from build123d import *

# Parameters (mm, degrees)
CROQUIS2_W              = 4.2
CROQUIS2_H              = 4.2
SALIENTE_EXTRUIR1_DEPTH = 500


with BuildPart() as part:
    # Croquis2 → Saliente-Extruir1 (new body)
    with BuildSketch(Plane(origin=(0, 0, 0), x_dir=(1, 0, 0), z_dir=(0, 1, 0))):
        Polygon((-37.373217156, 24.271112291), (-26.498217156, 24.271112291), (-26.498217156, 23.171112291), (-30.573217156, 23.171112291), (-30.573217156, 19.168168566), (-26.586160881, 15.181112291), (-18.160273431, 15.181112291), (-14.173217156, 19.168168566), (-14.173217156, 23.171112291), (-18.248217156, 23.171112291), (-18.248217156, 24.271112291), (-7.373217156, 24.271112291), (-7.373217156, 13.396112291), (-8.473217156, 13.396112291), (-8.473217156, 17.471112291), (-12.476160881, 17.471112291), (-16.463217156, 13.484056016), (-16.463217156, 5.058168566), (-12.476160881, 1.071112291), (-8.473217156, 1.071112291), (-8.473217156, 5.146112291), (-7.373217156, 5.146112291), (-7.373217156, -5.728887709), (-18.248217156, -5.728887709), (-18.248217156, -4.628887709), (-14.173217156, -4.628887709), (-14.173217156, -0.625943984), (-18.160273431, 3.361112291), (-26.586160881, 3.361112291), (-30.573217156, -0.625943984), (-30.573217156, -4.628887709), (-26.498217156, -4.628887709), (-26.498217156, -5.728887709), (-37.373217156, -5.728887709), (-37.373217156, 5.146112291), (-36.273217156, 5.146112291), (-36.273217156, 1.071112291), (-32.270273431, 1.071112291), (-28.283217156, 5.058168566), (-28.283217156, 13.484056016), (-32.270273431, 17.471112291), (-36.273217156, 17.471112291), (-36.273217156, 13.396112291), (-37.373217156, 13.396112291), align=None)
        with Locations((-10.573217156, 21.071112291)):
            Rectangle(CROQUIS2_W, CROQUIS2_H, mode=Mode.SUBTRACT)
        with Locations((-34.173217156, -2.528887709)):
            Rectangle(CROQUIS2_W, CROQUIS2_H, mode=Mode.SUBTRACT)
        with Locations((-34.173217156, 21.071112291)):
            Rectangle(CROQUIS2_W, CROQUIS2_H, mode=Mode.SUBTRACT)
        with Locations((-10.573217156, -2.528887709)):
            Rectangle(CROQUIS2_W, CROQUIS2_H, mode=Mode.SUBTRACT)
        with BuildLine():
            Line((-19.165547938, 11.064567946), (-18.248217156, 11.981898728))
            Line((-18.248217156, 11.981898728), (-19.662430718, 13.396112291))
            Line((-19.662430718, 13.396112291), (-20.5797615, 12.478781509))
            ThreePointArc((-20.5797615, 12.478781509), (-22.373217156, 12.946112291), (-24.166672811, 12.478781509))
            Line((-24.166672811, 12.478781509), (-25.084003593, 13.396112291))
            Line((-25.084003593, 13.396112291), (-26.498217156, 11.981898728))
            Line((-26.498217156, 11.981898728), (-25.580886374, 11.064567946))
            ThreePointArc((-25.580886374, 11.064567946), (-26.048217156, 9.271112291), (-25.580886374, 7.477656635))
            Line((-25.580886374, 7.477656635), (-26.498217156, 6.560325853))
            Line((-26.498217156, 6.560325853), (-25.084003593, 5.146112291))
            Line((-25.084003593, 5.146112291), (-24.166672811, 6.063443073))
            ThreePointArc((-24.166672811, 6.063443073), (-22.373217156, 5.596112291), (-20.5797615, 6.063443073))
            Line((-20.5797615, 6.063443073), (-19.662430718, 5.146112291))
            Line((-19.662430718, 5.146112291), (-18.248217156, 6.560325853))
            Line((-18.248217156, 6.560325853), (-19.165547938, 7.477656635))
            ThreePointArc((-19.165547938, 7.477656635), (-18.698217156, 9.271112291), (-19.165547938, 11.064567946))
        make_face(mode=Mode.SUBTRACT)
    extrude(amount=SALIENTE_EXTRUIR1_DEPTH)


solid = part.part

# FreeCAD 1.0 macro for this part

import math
import FreeCAD as App
import Part
import Sketcher

V = App.Vector

doc = App.newDocument("Part")
params = doc.addObject("Spreadsheet::Sheet", "Params")
for row, (alias, value) in enumerate([
    ("sketch1_length", "2 mm"),
    ("sketch1_width", "1.1 mm"),
    ("sketch1_width2", "4.2 mm"),
    ("pad1_length", "500 mm"),
], start=1):
    params.set(f"A{row}", alias)
    params.set(f"B{row}", "=" + value)
    params.setAlias(f"B{row}", alias)

body = doc.addObject("PartDesign::Body", "Body")

# Sketch on XZ plane
sketch1 = doc.addObject("Sketcher::SketchObject", "Sketch")
body.addObject(sketch1)
sketch1.AttachmentSupport = (doc.XZ_Plane, [""])
sketch1.MapMode = "FlatFace"
sketch1.addGeometry(Part.LineSegment(V(-26.498217, -24.271112, 0), V(-37.373217, -24.271112, 0)), False)
sketch1.addGeometry(Part.LineSegment(V(-37.373217, -24.271112, 0), V(-37.373217, -13.396112, 0)), False)
sketch1.addGeometry(Part.LineSegment(V(-37.373217, -13.396112, 0), V(-36.273217, -13.396112, 0)), False)
sketch1.addGeometry(Part.LineSegment(V(-36.273217, -13.396112, 0), V(-36.273217, -17.471112, 0)), False)
sketch1.addGeometry(Part.LineSegment(V(-36.273217, -17.471112, 0), V(-32.270273, -17.471112, 0)), False)
sketch1.addGeometry(Part.LineSegment(V(-32.270273, -17.471112, 0), V(-28.283217, -13.484056, 0)), False)
sketch1.addGeometry(Part.LineSegment(V(-28.283217, -13.484056, 0), V(-28.283217, -5.058169, 0)), False)
sketch1.addGeometry(Part.LineSegment(V(-28.283217, -5.058169, 0), V(-32.270273, -1.071112, 0)), False)
sketch1.addGeometry(Part.LineSegment(V(-32.270273, -1.071112, 0), V(-36.273217, -1.071112, 0)), False)
sketch1.addGeometry(Part.LineSegment(V(-36.273217, -1.071112, 0), V(-36.273217, -5.146112, 0)), False)
sketch1.addGeometry(Part.LineSegment(V(-36.273217, -5.146112, 0), V(-37.373217, -5.146112, 0)), False)
sketch1.addGeometry(Part.LineSegment(V(-37.373217, -5.146112, 0), V(-37.373217, 5.728888, 0)), False)
sketch1.addGeometry(Part.LineSegment(V(-37.373217, 5.728888, 0), V(-26.498217, 5.728888, 0)), False)
sketch1.addGeometry(Part.LineSegment(V(-26.498217, 5.728888, 0), V(-26.498217, 4.628888, 0)), False)
sketch1.addGeometry(Part.LineSegment(V(-26.498217, 4.628888, 0), V(-30.573217, 4.628888, 0)), False)
sketch1.addGeometry(Part.LineSegment(V(-30.573217, 4.628888, 0), V(-30.573217, 0.625944, 0)), False)
sketch1.addGeometry(Part.LineSegment(V(-30.573217, 0.625944, 0), V(-26.586161, -3.361112, 0)), False)
sketch1.addGeometry(Part.LineSegment(V(-26.586161, -3.361112, 0), V(-18.160273, -3.361112, 0)), False)
sketch1.addGeometry(Part.LineSegment(V(-18.160273, -3.361112, 0), V(-14.173217, 0.625944, 0)), False)
sketch1.addGeometry(Part.LineSegment(V(-14.173217, 0.625944, 0), V(-14.173217, 4.628888, 0)), False)
sketch1.addGeometry(Part.LineSegment(V(-14.173217, 4.628888, 0), V(-18.248217, 4.628888, 0)), False)
sketch1.addGeometry(Part.LineSegment(V(-18.248217, 4.628888, 0), V(-18.248217, 5.728888, 0)), False)
sketch1.addGeometry(Part.LineSegment(V(-18.248217, 5.728888, 0), V(-7.373217, 5.728888, 0)), False)
sketch1.addGeometry(Part.LineSegment(V(-7.373217, 5.728888, 0), V(-7.373217, -5.146112, 0)), False)
sketch1.addGeometry(Part.LineSegment(V(-7.373217, -5.146112, 0), V(-8.473217, -5.146112, 0)), False)
sketch1.addGeometry(Part.LineSegment(V(-8.473217, -5.146112, 0), V(-8.473217, -1.071112, 0)), False)
sketch1.addGeometry(Part.LineSegment(V(-8.473217, -1.071112, 0), V(-12.476161, -1.071112, 0)), False)
sketch1.addGeometry(Part.LineSegment(V(-12.476161, -1.071112, 0), V(-16.463217, -5.058169, 0)), False)
sketch1.addGeometry(Part.LineSegment(V(-16.463217, -5.058169, 0), V(-16.463217, -13.484056, 0)), False)
sketch1.addGeometry(Part.LineSegment(V(-16.463217, -13.484056, 0), V(-12.476161, -17.471112, 0)), False)
sketch1.addGeometry(Part.LineSegment(V(-12.476161, -17.471112, 0), V(-8.473217, -17.471112, 0)), False)
sketch1.addGeometry(Part.LineSegment(V(-8.473217, -17.471112, 0), V(-8.473217, -13.396112, 0)), False)
sketch1.addGeometry(Part.LineSegment(V(-8.473217, -13.396112, 0), V(-7.373217, -13.396112, 0)), False)
sketch1.addGeometry(Part.LineSegment(V(-7.373217, -13.396112, 0), V(-7.373217, -24.271112, 0)), False)
sketch1.addGeometry(Part.LineSegment(V(-7.373217, -24.271112, 0), V(-18.248217, -24.271112, 0)), False)
sketch1.addGeometry(Part.LineSegment(V(-18.248217, -24.271112, 0), V(-18.248217, -23.171112, 0)), False)
sketch1.addGeometry(Part.LineSegment(V(-18.248217, -23.171112, 0), V(-14.173217, -23.171112, 0)), False)
sketch1.addGeometry(Part.LineSegment(V(-14.173217, -23.171112, 0), V(-14.173217, -19.168169, 0)), False)
sketch1.addGeometry(Part.LineSegment(V(-14.173217, -19.168169, 0), V(-18.160273, -15.181112, 0)), False)
sketch1.addGeometry(Part.LineSegment(V(-18.160273, -15.181112, 0), V(-26.586161, -15.181112, 0)), False)
sketch1.addGeometry(Part.LineSegment(V(-26.586161, -15.181112, 0), V(-30.573217, -19.168169, 0)), False)
sketch1.addGeometry(Part.LineSegment(V(-30.573217, -19.168169, 0), V(-30.573217, -23.171112, 0)), False)
sketch1.addGeometry(Part.LineSegment(V(-30.573217, -23.171112, 0), V(-26.498217, -23.171112, 0)), False)
sketch1.addGeometry(Part.LineSegment(V(-26.498217, -23.171112, 0), V(-26.498217, -24.271112, 0)), False)
sketch1.addGeometry(Part.LineSegment(V(-12.673217, 4.628888, 0), V(-12.673217, 0.428888, 0)), False)
sketch1.addGeometry(Part.LineSegment(V(-12.673217, 0.428888, 0), V(-8.473217, 0.428888, 0)), False)
sketch1.addGeometry(Part.LineSegment(V(-8.473217, 0.428888, 0), V(-8.473217, 4.628888, 0)), False)
sketch1.addGeometry(Part.LineSegment(V(-8.473217, 4.628888, 0), V(-12.673217, 4.628888, 0)), False)
sketch1.addGeometry(Part.LineSegment(V(-36.273217, 4.628888, 0), V(-36.273217, 0.428888, 0)), False)
sketch1.addGeometry(Part.LineSegment(V(-36.273217, 0.428888, 0), V(-32.073217, 0.428888, 0)), False)
sketch1.addGeometry(Part.LineSegment(V(-32.073217, 0.428888, 0), V(-32.073217, 4.628888, 0)), False)
sketch1.addGeometry(Part.LineSegment(V(-32.073217, 4.628888, 0), V(-36.273217, 4.628888, 0)), False)
sketch1.addGeometry(Part.ArcOfCircle(Part.Circle(V(-22.373217, -9.271112, 0), V(0, 0, 1), 3.675), math.radians(-29.210206), math.radians(29.210206)), False)
sketch1.addGeometry(Part.LineSegment(V(-19.165548, -7.477657, 0), V(-18.248217, -6.560326, 0)), False)
sketch1.addGeometry(Part.LineSegment(V(-18.248217, -6.560326, 0), V(-19.662431, -5.146112, 0)), False)
sketch1.addGeometry(Part.LineSegment(V(-19.662431, -5.146112, 0), V(-20.579762, -6.063443, 0)), False)
sketch1.addGeometry(Part.ArcOfCircle(Part.Circle(V(-22.373217, -9.271112, 0), V(0, 0, 1), 3.675), math.radians(60.789794), math.radians(119.210206)), False)
sketch1.addGeometry(Part.LineSegment(V(-24.166673, -6.063443, 0), V(-25.084004, -5.146112, 0)), False)
sketch1.addGeometry(Part.LineSegment(V(-25.084004, -5.146112, 0), V(-26.498217, -6.560326, 0)), False)
sketch1.addGeometry(Part.LineSegment(V(-26.498217, -6.560326, 0), V(-25.580886, -7.477657, 0)), False)
sketch1.addGeometry(Part.ArcOfCircle(Part.Circle(V(-22.373217, -9.271112, 0), V(0, 0, 1), 3.675), math.radians(150.789794), math.radians(209.210206)), False)
sketch1.addGeometry(Part.LineSegment(V(-25.580886, -11.064568, 0), V(-26.498217, -11.981899, 0)), False)
sketch1.addGeometry(Part.LineSegment(V(-26.498217, -11.981899, 0), V(-25.084004, -13.396112, 0)), False)
sketch1.addGeometry(Part.LineSegment(V(-25.084004, -13.396112, 0), V(-24.166673, -12.478782, 0)), False)
sketch1.addGeometry(Part.ArcOfCircle(Part.Circle(V(-22.373217, -9.271112, 0), V(0, 0, 1), 3.675), math.radians(-119.210206), math.radians(-60.789794)), False)
sketch1.addGeometry(Part.LineSegment(V(-20.579762, -12.478782, 0), V(-19.662431, -13.396112, 0)), False)
sketch1.addGeometry(Part.LineSegment(V(-19.662431, -13.396112, 0), V(-18.248217, -11.981899, 0)), False)
sketch1.addGeometry(Part.LineSegment(V(-18.248217, -11.981899, 0), V(-19.165548, -11.064568, 0)), False)
sketch1.addGeometry(Part.LineSegment(V(-12.673217, -18.971112, 0), V(-12.673217, -23.171112, 0)), False)
sketch1.addGeometry(Part.LineSegment(V(-12.673217, -23.171112, 0), V(-8.473217, -23.171112, 0)), False)
sketch1.addGeometry(Part.LineSegment(V(-8.473217, -23.171112, 0), V(-8.473217, -18.971112, 0)), False)
sketch1.addGeometry(Part.LineSegment(V(-8.473217, -18.971112, 0), V(-12.673217, -18.971112, 0)), False)
sketch1.addGeometry(Part.LineSegment(V(-36.273217, -18.971112, 0), V(-36.273217, -23.171112, 0)), False)
sketch1.addGeometry(Part.LineSegment(V(-36.273217, -23.171112, 0), V(-32.073217, -23.171112, 0)), False)
sketch1.addGeometry(Part.LineSegment(V(-32.073217, -23.171112, 0), V(-32.073217, -18.971112, 0)), False)
sketch1.addGeometry(Part.LineSegment(V(-32.073217, -18.971112, 0), V(-36.273217, -18.971112, 0)), False)
sketch1.addConstraint(Sketcher.Constraint("Coincident", 0, 2, 1, 1))
sketch1.addConstraint(Sketcher.Constraint("Coincident", 1, 2, 2, 1))
sketch1.addConstraint(Sketcher.Constraint("Coincident", 2, 2, 3, 1))
sketch1.addConstraint(Sketcher.Constraint("Coincident", 3, 2, 4, 1))
sketch1.addConstraint(Sketcher.Constraint("Coincident", 4, 2, 5, 1))
sketch1.addConstraint(Sketcher.Constraint("Coincident", 5, 2, 6, 1))
sketch1.addConstraint(Sketcher.Constraint("Coincident", 6, 2, 7, 1))
sketch1.addConstraint(Sketcher.Constraint("Coincident", 7, 2, 8, 1))
sketch1.addConstraint(Sketcher.Constraint("Coincident", 8, 2, 9, 1))
sketch1.addConstraint(Sketcher.Constraint("Coincident", 9, 2, 10, 1))
sketch1.addConstraint(Sketcher.Constraint("Coincident", 10, 2, 11, 1))
sketch1.addConstraint(Sketcher.Constraint("Coincident", 11, 2, 12, 1))
sketch1.addConstraint(Sketcher.Constraint("Coincident", 12, 2, 13, 1))
sketch1.addConstraint(Sketcher.Constraint("Coincident", 13, 2, 14, 1))
sketch1.addConstraint(Sketcher.Constraint("Coincident", 14, 2, 15, 1))
sketch1.addConstraint(Sketcher.Constraint("Coincident", 15, 2, 16, 1))
sketch1.addConstraint(Sketcher.Constraint("Coincident", 16, 2, 17, 1))
sketch1.addConstraint(Sketcher.Constraint("Coincident", 17, 2, 18, 1))
sketch1.addConstraint(Sketcher.Constraint("Coincident", 18, 2, 19, 1))
sketch1.addConstraint(Sketcher.Constraint("Coincident", 19, 2, 20, 1))
sketch1.addConstraint(Sketcher.Constraint("Coincident", 20, 2, 21, 1))
sketch1.addConstraint(Sketcher.Constraint("Coincident", 21, 2, 22, 1))
sketch1.addConstraint(Sketcher.Constraint("Coincident", 22, 2, 23, 1))
sketch1.addConstraint(Sketcher.Constraint("Coincident", 23, 2, 24, 1))
sketch1.addConstraint(Sketcher.Constraint("Coincident", 24, 2, 25, 1))
sketch1.addConstraint(Sketcher.Constraint("Coincident", 25, 2, 26, 1))
sketch1.addConstraint(Sketcher.Constraint("Coincident", 26, 2, 27, 1))
sketch1.addConstraint(Sketcher.Constraint("Coincident", 27, 2, 28, 1))
sketch1.addConstraint(Sketcher.Constraint("Coincident", 28, 2, 29, 1))
sketch1.addConstraint(Sketcher.Constraint("Coincident", 29, 2, 30, 1))
sketch1.addConstraint(Sketcher.Constraint("Coincident", 30, 2, 31, 1))
sketch1.addConstraint(Sketcher.Constraint("Coincident", 31, 2, 32, 1))
sketch1.addConstraint(Sketcher.Constraint("Coincident", 32, 2, 33, 1))
sketch1.addConstraint(Sketcher.Constraint("Coincident", 33, 2, 34, 1))
sketch1.addConstraint(Sketcher.Constraint("Coincident", 34, 2, 35, 1))
sketch1.addConstraint(Sketcher.Constraint("Coincident", 35, 2, 36, 1))
sketch1.addConstraint(Sketcher.Constraint("Coincident", 36, 2, 37, 1))
sketch1.addConstraint(Sketcher.Constraint("Coincident", 37, 2, 38, 1))
sketch1.addConstraint(Sketcher.Constraint("Coincident", 38, 2, 39, 1))
sketch1.addConstraint(Sketcher.Constraint("Coincident", 39, 2, 40, 1))
sketch1.addConstraint(Sketcher.Constraint("Coincident", 40, 2, 41, 1))
sketch1.addConstraint(Sketcher.Constraint("Coincident", 41, 2, 42, 1))
sketch1.addConstraint(Sketcher.Constraint("Coincident", 42, 2, 43, 1))
sketch1.addConstraint(Sketcher.Constraint("Coincident", 43, 2, 0, 1))
sketch1.addConstraint(Sketcher.Constraint("Coincident", 44, 2, 45, 1))
sketch1.addConstraint(Sketcher.Constraint("Coincident", 45, 2, 46, 1))
sketch1.addConstraint(Sketcher.Constraint("Coincident", 46, 2, 47, 1))
sketch1.addConstraint(Sketcher.Constraint("Coincident", 47, 2, 44, 1))
sketch1.addConstraint(Sketcher.Constraint("Coincident", 48, 2, 49, 1))
sketch1.addConstraint(Sketcher.Constraint("Coincident", 49, 2, 50, 1))
sketch1.addConstraint(Sketcher.Constraint("Coincident", 50, 2, 51, 1))
sketch1.addConstraint(Sketcher.Constraint("Coincident", 51, 2, 48, 1))
sketch1.addConstraint(Sketcher.Constraint("Coincident", 52, 2, 53, 1))
sketch1.addConstraint(Sketcher.Constraint("Coincident", 53, 2, 54, 1))
sketch1.addConstraint(Sketcher.Constraint("Coincident", 54, 2, 55, 1))
sketch1.addConstraint(Sketcher.Constraint("Coincident", 55, 2, 56, 1))
sketch1.addConstraint(Sketcher.Constraint("Coincident", 56, 2, 57, 1))
sketch1.addConstraint(Sketcher.Constraint("Coincident", 57, 2, 58, 1))
sketch1.addConstraint(Sketcher.Constraint("Coincident", 58, 2, 59, 1))
sketch1.addConstraint(Sketcher.Constraint("Coincident", 59, 2, 60, 1))
sketch1.addConstraint(Sketcher.Constraint("Coincident", 60, 2, 61, 1))
sketch1.addConstraint(Sketcher.Constraint("Coincident", 61, 2, 62, 1))
sketch1.addConstraint(Sketcher.Constraint("Coincident", 62, 2, 63, 1))
sketch1.addConstraint(Sketcher.Constraint("Coincident", 63, 2, 64, 1))
sketch1.addConstraint(Sketcher.Constraint("Coincident", 64, 2, 65, 1))
sketch1.addConstraint(Sketcher.Constraint("Coincident", 65, 2, 66, 1))
sketch1.addConstraint(Sketcher.Constraint("Coincident", 66, 2, 67, 1))
sketch1.addConstraint(Sketcher.Constraint("Coincident", 67, 2, 52, 1))
sketch1.addConstraint(Sketcher.Constraint("Coincident", 68, 2, 69, 1))
sketch1.addConstraint(Sketcher.Constraint("Coincident", 69, 2, 70, 1))
sketch1.addConstraint(Sketcher.Constraint("Coincident", 70, 2, 71, 1))
sketch1.addConstraint(Sketcher.Constraint("Coincident", 71, 2, 68, 1))
sketch1.addConstraint(Sketcher.Constraint("Coincident", 72, 2, 73, 1))
sketch1.addConstraint(Sketcher.Constraint("Coincident", 73, 2, 74, 1))
sketch1.addConstraint(Sketcher.Constraint("Coincident", 74, 2, 75, 1))
sketch1.addConstraint(Sketcher.Constraint("Coincident", 75, 2, 72, 1))
sketch1.addConstraint(Sketcher.Constraint("Horizontal", 0))
sketch1.addConstraint(Sketcher.Constraint("Vertical", 1))
sketch1.addConstraint(Sketcher.Constraint("Horizontal", 2))
sketch1.addConstraint(Sketcher.Constraint("Vertical", 3))
sketch1.addConstraint(Sketcher.Constraint("Horizontal", 4))
sketch1.addConstraint(Sketcher.Constraint("Vertical", 6))
sketch1.addConstraint(Sketcher.Constraint("Horizontal", 8))
sketch1.addConstraint(Sketcher.Constraint("Vertical", 9))
sketch1.addConstraint(Sketcher.Constraint("Horizontal", 10))
sketch1.addConstraint(Sketcher.Constraint("Vertical", 11))
sketch1.addConstraint(Sketcher.Constraint("Horizontal", 12))
sketch1.addConstraint(Sketcher.Constraint("Vertical", 13))
sketch1.addConstraint(Sketcher.Constraint("Horizontal", 14))
sketch1.addConstraint(Sketcher.Constraint("Vertical", 15))
sketch1.addConstraint(Sketcher.Constraint("Horizontal", 17))
sketch1.addConstraint(Sketcher.Constraint("Vertical", 19))
sketch1.addConstraint(Sketcher.Constraint("Horizontal", 20))
sketch1.addConstraint(Sketcher.Constraint("Vertical", 21))
sketch1.addConstraint(Sketcher.Constraint("Horizontal", 22))
sketch1.addConstraint(Sketcher.Constraint("Vertical", 23))
sketch1.addConstraint(Sketcher.Constraint("Horizontal", 24))
sketch1.addConstraint(Sketcher.Constraint("Vertical", 25))
sketch1.addConstraint(Sketcher.Constraint("Horizontal", 26))
sketch1.addConstraint(Sketcher.Constraint("Vertical", 28))
sketch1.addConstraint(Sketcher.Constraint("Horizontal", 30))
sketch1.addConstraint(Sketcher.Constraint("Vertical", 31))
sketch1.addConstraint(Sketcher.Constraint("Horizontal", 32))
sketch1.addConstraint(Sketcher.Constraint("Vertical", 33))
sketch1.addConstraint(Sketcher.Constraint("Horizontal", 34))
sketch1.addConstraint(Sketcher.Constraint("Vertical", 35))
sketch1.addConstraint(Sketcher.Constraint("Horizontal", 36))
sketch1.addConstraint(Sketcher.Constraint("Vertical", 37))
sketch1.addConstraint(Sketcher.Constraint("Horizontal", 39))
sketch1.addConstraint(Sketcher.Constraint("Vertical", 41))
sketch1.addConstraint(Sketcher.Constraint("Horizontal", 42))
sketch1.addConstraint(Sketcher.Constraint("Vertical", 43))
sketch1.addConstraint(Sketcher.Constraint("Vertical", 44))
sketch1.addConstraint(Sketcher.Constraint("Horizontal", 45))
sketch1.addConstraint(Sketcher.Constraint("Vertical", 46))
sketch1.addConstraint(Sketcher.Constraint("Horizontal", 47))
sketch1.addConstraint(Sketcher.Constraint("Vertical", 48))
sketch1.addConstraint(Sketcher.Constraint("Horizontal", 49))
sketch1.addConstraint(Sketcher.Constraint("Vertical", 50))
sketch1.addConstraint(Sketcher.Constraint("Horizontal", 51))
sketch1.addConstraint(Sketcher.Constraint("Vertical", 68))
sketch1.addConstraint(Sketcher.Constraint("Horizontal", 69))
sketch1.addConstraint(Sketcher.Constraint("Vertical", 70))
sketch1.addConstraint(Sketcher.Constraint("Horizontal", 71))
sketch1.addConstraint(Sketcher.Constraint("Vertical", 72))
sketch1.addConstraint(Sketcher.Constraint("Horizontal", 73))
sketch1.addConstraint(Sketcher.Constraint("Vertical", 74))
sketch1.addConstraint(Sketcher.Constraint("Horizontal", 75))
sketch1.addConstraint(Sketcher.Constraint("Coincident", 56, 3, 52, 3))
sketch1.addConstraint(Sketcher.Constraint("Coincident", 60, 3, 52, 3))
sketch1.addConstraint(Sketcher.Constraint("Coincident", 64, 3, 52, 3))
sketch1.addConstraint(Sketcher.Constraint("Equal", 52, 56))
sketch1.addConstraint(Sketcher.Constraint("Equal", 56, 60))
sketch1.addConstraint(Sketcher.Constraint("Equal", 60, 64))
sketch1.addConstraint(Sketcher.Constraint("Perpendicular", 5, 7))
sketch1.addConstraint(Sketcher.Constraint("Parallel", 7, 16))
sketch1.addConstraint(Sketcher.Constraint("Perpendicular", 16, 18))
sketch1.addConstraint(Sketcher.Constraint("Parallel", 18, 27))
sketch1.addConstraint(Sketcher.Constraint("Perpendicular", 27, 29))
sketch1.addConstraint(Sketcher.Constraint("Parallel", 29, 38))
sketch1.addConstraint(Sketcher.Constraint("Perpendicular", 38, 40))
sketch1.addConstraint(Sketcher.Constraint("Parallel", 40, 53))
sketch1.addConstraint(Sketcher.Constraint("Perpendicular", 53, 54))
sketch1.addConstraint(Sketcher.Constraint("Perpendicular", 54, 55))
sketch1.addConstraint(Sketcher.Constraint("Perpendicular", 55, 57))
sketch1.addConstraint(Sketcher.Constraint("Perpendicular", 57, 58))
sketch1.addConstraint(Sketcher.Constraint("Perpendicular", 58, 59))
sketch1.addConstraint(Sketcher.Constraint("Perpendicular", 59, 61))
sketch1.addConstraint(Sketcher.Constraint("Perpendicular", 61, 62))
sketch1.addConstraint(Sketcher.Constraint("Perpendicular", 62, 63))
sketch1.addConstraint(Sketcher.Constraint("Perpendicular", 63, 65))
sketch1.addConstraint(Sketcher.Constraint("Perpendicular", 65, 66))
sketch1.addConstraint(Sketcher.Constraint("Perpendicular", 66, 67))
sketch1.addConstraint(Sketcher.Constraint("Horizontal", 15, 2, 18, 2))
sketch1.addConstraint(Sketcher.Constraint("Horizontal", 14, 2, 19, 2))
sketch1.addConstraint(Sketcher.Constraint("Horizontal", 12, 2, 21, 2))
sketch1.addConstraint(Sketcher.Constraint("Horizontal", 10, 2, 23, 2))
sketch1.addConstraint(Sketcher.Constraint("Horizontal", 8, 2, 25, 2))
sketch1.addConstraint(Sketcher.Constraint("Horizontal", 6, 2, 27, 2))
sketch1.addConstraint(Sketcher.Constraint("Horizontal", 5, 2, 28, 2))
sketch1.addConstraint(Sketcher.Constraint("Horizontal", 4, 2, 29, 2))
sketch1.addConstraint(Sketcher.Constraint("Horizontal", 2, 2, 31, 2))
sketch1.addConstraint(Sketcher.Constraint("Horizontal", 0, 2, 33, 2))
sketch1.addConstraint(Sketcher.Constraint("Horizontal", 37, 2, 40, 2))
sketch1.addConstraint(Sketcher.Constraint("Horizontal", 36, 2, 41, 2))
sketch1.addConstraint(Sketcher.Constraint("Horizontal", 20, 2, 46, 2))
sketch1.addConstraint(Sketcher.Constraint("Horizontal", 45, 2, 48, 2))
sketch1.addConstraint(Sketcher.Constraint("Horizontal", 47, 2, 50, 2))
sketch1.addConstraint(Sketcher.Constraint("Horizontal", 24, 2, 54, 2))
sketch1.addConstraint(Sketcher.Constraint("Horizontal", 55, 2, 56, 2))
sketch1.addConstraint(Sketcher.Constraint("Horizontal", 54, 2, 57, 2))
sketch1.addConstraint(Sketcher.Constraint("Horizontal", 53, 2, 58, 2))
sketch1.addConstraint(Sketcher.Constraint("Horizontal", 52, 2, 59, 2))
sketch1.addConstraint(Sketcher.Constraint("Horizontal", 32, 2, 62, 2))
sketch1.addConstraint(Sketcher.Constraint("Horizontal", 63, 2, 64, 2))
sketch1.addConstraint(Sketcher.Constraint("Horizontal", 62, 2, 65, 2))
sketch1.addConstraint(Sketcher.Constraint("Horizontal", 61, 2, 66, 2))
sketch1.addConstraint(Sketcher.Constraint("Horizontal", 42, 2, 68, 2))
sketch1.addConstraint(Sketcher.Constraint("Horizontal", 69, 2, 72, 2))
sketch1.addConstraint(Sketcher.Constraint("Horizontal", 71, 2, 74, 2))
sketch1.addConstraint(Sketcher.Constraint("Vertical", 4, 2, 7, 2))
sketch1.addConstraint(Sketcher.Constraint("Vertical", 3, 2, 8, 2))
sketch1.addConstraint(Sketcher.Constraint("Vertical", 1, 2, 10, 2))
sketch1.addConstraint(Sketcher.Constraint("Vertical", 25, 2, 30, 2))
sketch1.addConstraint(Sketcher.Constraint("Vertical", 23, 2, 32, 2))
sketch1.addConstraint(Sketcher.Constraint("Vertical", 21, 2, 34, 2))
sketch1.addConstraint(Sketcher.Constraint("Vertical", 19, 2, 36, 2))
sketch1.addConstraint(Sketcher.Constraint("Vertical", 17, 2, 38, 2))
sketch1.addConstraint(Sketcher.Constraint("Vertical", 16, 2, 39, 2))
sketch1.addConstraint(Sketcher.Constraint("Vertical", 13, 2, 42, 2))
sketch1.addConstraint(Sketcher.Constraint("Vertical", 31, 2, 45, 2))
sketch1.addConstraint(Sketcher.Constraint("Vertical", 9, 2, 48, 2))
sketch1.addConstraint(Sketcher.Constraint("Vertical", 35, 2, 53, 2))
sketch1.addConstraint(Sketcher.Constraint("Vertical", 43, 2, 58, 2))
sketch1.addConstraint(Sketcher.Constraint("Vertical", 59, 2, 60, 2))
sketch1.addConstraint(Sketcher.Constraint("Vertical", 58, 2, 61, 2))
sketch1.addConstraint(Sketcher.Constraint("Vertical", 57, 2, 62, 2))
sketch1.addConstraint(Sketcher.Constraint("Vertical", 47, 2, 68, 2))
sketch1.addConstraint(Sketcher.Constraint("Vertical", 46, 2, 69, 2))
sketch1.addConstraint(Sketcher.Constraint("Vertical", 51, 2, 72, 2))
sketch1.addConstraint(Sketcher.Constraint("Vertical", 50, 2, 73, 2))
sketch1.addConstraint(Sketcher.Constraint("Equal", 14, 20))
sketch1.addConstraint(Sketcher.Constraint("Equal", 12, 22))
sketch1.addConstraint(Sketcher.Constraint("Equal", 10, 24))
sketch1.addConstraint(Sketcher.Constraint("Equal", 8, 26))
sketch1.addConstraint(Sketcher.Constraint("Equal", 47, 49))
sketch1.addConstraint(Sketcher.Constraint("Equal", 34, 1))
sketch1.addConstraint(Sketcher.Constraint("Equal", 42, 3))
sketch1.addConstraint(Sketcher.Constraint("Equal", 39, 6))
sketch1.addConstraint(Sketcher.Constraint("Equal", 3, 9))
sketch1.addConstraint(Sketcher.Constraint("Equal", 1, 11))
sketch1.addConstraint(Sketcher.Constraint("Equal", 32, 13))
sketch1.addConstraint(Sketcher.Constraint("Equal", 30, 15))
sketch1.addConstraint(Sketcher.Constraint("Equal", 21, 35))
sketch1.addConstraint(Sketcher.Constraint("Equal", 19, 37))
sketch1.addConstraint(Sketcher.Constraint("Equal", 75, 44))
sketch1.addConstraint(Sketcher.Constraint("Equal", 50, 68))
sketch1.addConstraint(Sketcher.Constraint("Equal", 7, 16))
sketch1.addConstraint(Sketcher.Constraint("Distance", 54, 2.0))
sketch1.addConstraint(Sketcher.Constraint("DistanceX", 2, 1, 2, 2, 1.1))
sketch1.addConstraint(Sketcher.Constraint("DistanceX", 45, 1, 45, 2, 4.2))
sketch1.addConstraint(Sketcher.Constraint("Radius", 52, 3.675))
sketch1.addConstraint(Sketcher.Constraint("DistanceX", 0, 2, 0, 1, 10.875))
sketch1.addConstraint(Sketcher.Constraint("DistanceX", 14, 2, 14, 1, 4.075))
sketch1.addConstraint(Sketcher.Constraint("Distance", 53, 1.297302))
sketch1.addConstraint(Sketcher.Constraint("DistanceY", 61, 2, -1, 1, 11.981899))
sketch1.addConstraint(Sketcher.Constraint("Distance", 5, 5.638549))
sketch1.addConstraint(Sketcher.Constraint("DistanceX", 4, 1, 4, 2, 4.002944))
sketch1.addConstraint(Sketcher.Constraint("DistanceX", 16, 2, -1, 1, 26.586161))
sketch1.setExpression("Constraints[218]", "Params.sketch1_length")
sketch1.setExpression("Constraints[219]", "Params.sketch1_width")
sketch1.setExpression("Constraints[220]", "Params.sketch1_width2")
pad1 = doc.addObject("PartDesign::Pad", "Pad")
body.addObject(pad1)
pad1.Profile = sketch1
pad1.setExpression("Length", "Params.pad1_length")
pad1.Reversed = True

doc.recompute()
